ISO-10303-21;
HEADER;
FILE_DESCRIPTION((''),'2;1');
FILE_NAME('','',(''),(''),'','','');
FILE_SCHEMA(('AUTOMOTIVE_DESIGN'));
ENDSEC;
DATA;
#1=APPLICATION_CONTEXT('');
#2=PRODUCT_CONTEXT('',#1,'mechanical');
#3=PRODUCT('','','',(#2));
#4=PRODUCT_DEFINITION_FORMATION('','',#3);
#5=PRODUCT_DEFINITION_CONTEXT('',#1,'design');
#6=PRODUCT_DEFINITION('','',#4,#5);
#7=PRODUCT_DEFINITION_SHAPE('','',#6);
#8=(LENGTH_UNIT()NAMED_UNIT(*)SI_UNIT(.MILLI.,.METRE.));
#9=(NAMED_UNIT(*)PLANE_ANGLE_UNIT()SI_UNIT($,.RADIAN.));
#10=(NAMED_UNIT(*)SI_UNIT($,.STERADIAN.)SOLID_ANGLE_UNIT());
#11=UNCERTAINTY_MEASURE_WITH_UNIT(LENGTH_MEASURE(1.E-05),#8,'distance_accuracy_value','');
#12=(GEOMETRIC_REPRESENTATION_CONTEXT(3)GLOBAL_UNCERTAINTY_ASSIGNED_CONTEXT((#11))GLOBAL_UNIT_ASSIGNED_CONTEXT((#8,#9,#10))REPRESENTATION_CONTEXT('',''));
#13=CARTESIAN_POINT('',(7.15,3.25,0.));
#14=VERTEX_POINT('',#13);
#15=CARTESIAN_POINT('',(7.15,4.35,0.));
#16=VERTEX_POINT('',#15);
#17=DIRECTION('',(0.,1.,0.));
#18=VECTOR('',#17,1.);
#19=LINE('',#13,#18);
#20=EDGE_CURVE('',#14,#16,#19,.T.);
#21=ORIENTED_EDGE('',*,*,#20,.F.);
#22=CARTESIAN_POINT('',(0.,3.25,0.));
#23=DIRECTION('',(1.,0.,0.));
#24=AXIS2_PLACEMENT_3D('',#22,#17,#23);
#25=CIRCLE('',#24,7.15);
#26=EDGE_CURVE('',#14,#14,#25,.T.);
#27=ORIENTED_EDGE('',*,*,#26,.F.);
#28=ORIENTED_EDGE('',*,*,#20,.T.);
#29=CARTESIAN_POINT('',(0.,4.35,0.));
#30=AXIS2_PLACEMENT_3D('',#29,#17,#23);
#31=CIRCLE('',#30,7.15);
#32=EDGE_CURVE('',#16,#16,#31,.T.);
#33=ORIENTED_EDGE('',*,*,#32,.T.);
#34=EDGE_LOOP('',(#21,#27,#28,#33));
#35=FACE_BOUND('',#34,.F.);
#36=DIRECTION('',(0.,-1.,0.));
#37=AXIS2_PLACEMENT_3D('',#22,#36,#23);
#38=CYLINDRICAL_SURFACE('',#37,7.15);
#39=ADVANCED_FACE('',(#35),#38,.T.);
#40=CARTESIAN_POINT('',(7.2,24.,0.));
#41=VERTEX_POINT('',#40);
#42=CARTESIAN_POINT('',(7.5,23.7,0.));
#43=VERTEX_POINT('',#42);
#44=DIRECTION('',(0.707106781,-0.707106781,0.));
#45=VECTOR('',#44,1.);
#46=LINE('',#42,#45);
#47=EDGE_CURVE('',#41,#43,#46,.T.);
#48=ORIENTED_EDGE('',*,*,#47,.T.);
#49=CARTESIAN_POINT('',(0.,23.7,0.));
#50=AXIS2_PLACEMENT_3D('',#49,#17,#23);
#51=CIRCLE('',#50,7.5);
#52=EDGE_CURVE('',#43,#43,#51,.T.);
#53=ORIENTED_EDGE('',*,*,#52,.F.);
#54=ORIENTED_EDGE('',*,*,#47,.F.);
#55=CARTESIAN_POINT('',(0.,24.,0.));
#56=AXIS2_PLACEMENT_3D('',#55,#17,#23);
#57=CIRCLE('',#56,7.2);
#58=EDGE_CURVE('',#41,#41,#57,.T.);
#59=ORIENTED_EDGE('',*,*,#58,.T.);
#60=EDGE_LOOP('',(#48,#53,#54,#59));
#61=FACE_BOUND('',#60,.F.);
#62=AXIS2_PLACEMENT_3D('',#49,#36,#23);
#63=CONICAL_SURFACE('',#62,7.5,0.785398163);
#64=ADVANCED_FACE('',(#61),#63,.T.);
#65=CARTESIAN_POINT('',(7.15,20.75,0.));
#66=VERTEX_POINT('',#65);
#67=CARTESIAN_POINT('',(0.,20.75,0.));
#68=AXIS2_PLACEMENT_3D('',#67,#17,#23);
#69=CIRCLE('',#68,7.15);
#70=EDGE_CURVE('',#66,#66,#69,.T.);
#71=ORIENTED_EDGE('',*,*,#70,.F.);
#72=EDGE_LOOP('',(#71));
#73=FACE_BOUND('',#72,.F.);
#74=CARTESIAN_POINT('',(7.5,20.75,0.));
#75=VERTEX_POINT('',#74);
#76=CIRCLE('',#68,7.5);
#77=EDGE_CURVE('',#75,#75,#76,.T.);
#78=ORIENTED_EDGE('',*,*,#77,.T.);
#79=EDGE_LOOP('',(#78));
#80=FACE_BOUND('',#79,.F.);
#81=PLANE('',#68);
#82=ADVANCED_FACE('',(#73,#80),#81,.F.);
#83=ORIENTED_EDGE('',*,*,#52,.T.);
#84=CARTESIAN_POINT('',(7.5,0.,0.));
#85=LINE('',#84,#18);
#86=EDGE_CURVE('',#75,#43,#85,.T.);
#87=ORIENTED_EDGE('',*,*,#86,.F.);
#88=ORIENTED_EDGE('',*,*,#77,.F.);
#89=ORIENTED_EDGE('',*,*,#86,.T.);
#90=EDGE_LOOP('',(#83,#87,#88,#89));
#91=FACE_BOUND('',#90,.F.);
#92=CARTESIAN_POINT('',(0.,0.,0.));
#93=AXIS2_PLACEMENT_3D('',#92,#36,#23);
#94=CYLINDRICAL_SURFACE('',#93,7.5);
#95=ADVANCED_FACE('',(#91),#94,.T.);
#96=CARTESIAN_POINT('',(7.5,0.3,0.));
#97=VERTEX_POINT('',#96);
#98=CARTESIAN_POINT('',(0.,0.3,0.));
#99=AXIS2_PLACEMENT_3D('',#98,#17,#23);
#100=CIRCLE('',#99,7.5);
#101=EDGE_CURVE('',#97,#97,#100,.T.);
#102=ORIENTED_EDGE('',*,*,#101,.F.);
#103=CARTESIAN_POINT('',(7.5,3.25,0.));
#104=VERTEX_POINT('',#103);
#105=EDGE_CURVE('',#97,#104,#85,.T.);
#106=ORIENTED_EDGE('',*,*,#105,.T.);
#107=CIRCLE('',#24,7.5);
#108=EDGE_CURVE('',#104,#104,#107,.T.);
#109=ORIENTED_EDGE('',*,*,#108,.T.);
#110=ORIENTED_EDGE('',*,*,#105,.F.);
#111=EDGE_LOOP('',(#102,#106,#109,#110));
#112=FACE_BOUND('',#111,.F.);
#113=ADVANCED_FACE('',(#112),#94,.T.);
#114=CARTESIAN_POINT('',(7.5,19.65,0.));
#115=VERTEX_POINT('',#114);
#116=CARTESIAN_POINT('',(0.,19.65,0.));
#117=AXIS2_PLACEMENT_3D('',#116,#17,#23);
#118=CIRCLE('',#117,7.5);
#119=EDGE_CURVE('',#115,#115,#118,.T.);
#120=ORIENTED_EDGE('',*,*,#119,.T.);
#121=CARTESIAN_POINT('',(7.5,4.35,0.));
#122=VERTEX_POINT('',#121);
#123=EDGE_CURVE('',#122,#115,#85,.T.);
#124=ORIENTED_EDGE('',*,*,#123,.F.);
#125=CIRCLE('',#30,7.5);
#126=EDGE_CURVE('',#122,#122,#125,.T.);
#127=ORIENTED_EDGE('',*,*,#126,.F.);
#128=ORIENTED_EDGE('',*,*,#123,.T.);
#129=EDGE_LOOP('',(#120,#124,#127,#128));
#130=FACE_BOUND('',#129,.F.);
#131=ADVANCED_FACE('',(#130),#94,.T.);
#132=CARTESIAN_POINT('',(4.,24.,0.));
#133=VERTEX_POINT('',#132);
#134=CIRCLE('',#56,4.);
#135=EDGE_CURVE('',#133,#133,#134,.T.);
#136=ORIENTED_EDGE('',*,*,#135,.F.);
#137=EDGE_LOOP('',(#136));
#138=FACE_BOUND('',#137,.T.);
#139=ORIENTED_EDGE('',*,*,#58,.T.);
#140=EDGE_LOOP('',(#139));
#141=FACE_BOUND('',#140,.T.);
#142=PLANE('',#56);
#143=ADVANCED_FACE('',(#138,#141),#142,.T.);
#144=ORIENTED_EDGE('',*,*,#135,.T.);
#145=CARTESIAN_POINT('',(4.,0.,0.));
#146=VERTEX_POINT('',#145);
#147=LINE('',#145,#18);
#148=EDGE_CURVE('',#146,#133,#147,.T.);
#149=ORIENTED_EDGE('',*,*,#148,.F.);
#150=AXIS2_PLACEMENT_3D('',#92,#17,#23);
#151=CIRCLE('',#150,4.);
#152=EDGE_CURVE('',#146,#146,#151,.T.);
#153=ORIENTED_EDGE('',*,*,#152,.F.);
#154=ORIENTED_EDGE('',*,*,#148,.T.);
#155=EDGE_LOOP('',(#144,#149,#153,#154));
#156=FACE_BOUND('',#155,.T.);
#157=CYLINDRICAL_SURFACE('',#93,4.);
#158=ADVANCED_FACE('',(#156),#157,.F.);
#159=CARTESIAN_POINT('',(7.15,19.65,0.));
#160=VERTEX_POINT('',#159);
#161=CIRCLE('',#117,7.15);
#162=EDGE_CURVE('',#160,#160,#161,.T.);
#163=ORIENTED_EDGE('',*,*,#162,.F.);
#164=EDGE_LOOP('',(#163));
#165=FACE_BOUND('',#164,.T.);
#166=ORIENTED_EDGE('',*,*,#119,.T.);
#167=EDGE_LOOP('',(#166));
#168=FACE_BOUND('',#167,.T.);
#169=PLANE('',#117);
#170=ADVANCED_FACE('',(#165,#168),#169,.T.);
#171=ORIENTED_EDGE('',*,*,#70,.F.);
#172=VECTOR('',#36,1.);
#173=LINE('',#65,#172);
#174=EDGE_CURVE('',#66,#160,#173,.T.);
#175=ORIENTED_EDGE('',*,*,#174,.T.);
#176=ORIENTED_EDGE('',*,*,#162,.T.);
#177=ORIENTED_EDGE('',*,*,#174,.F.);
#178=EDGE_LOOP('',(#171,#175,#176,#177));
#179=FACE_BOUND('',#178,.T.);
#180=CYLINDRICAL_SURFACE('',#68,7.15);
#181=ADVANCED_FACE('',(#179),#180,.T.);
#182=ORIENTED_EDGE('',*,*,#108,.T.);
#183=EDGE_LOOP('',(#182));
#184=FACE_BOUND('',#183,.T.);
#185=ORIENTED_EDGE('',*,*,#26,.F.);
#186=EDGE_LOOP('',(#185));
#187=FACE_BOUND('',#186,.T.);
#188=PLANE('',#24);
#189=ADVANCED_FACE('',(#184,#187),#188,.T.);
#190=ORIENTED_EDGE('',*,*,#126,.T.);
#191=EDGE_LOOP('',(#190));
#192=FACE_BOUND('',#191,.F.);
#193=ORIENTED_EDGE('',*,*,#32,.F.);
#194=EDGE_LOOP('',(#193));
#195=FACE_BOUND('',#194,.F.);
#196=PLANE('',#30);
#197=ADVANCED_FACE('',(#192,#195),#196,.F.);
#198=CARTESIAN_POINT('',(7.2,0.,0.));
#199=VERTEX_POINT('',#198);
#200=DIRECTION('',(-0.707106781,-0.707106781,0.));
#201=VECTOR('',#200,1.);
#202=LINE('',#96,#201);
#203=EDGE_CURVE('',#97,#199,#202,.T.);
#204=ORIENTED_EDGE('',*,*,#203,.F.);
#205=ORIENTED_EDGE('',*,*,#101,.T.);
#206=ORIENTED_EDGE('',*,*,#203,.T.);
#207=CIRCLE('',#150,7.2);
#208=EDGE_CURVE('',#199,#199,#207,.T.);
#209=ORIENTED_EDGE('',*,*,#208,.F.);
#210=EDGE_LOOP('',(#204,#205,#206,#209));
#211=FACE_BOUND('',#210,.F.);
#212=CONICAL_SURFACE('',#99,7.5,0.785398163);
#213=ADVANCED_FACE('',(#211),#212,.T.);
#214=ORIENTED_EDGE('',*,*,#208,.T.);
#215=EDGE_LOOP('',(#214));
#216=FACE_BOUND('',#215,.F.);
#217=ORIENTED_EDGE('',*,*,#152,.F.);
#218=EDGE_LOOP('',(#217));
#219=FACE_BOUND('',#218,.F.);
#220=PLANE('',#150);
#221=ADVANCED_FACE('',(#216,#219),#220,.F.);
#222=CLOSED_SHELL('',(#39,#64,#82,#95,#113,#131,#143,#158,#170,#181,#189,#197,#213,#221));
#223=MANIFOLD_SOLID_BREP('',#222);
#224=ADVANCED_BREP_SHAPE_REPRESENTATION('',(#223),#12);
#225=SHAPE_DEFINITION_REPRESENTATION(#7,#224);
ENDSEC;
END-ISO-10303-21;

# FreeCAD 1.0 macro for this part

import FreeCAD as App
import Part
import Sketcher
Q = App.Units.Quantity


def edges_at(feature, points):
    """Names of the edges that pass closest to the given points."""
    edges = feature.Shape.Edges
    near = lambda p: min(range(len(edges)), key=lambda i: edges[i].distToShape(Part.Vertex(*p))[0])
    return sorted({f"Edge{near(p) + 1}" for p in points})

doc = App.newDocument("Part")
body = doc.addObject("PartDesign::Body", "Body")

sketch1 = body.newObject("Sketcher::SketchObject", "Sketch")
sketch1.AttachmentSupport = (doc.getObject("XZ_Plane"), [""])
sketch1.MapMode = "FlatFace"
sketch1.addGeometry(Part.Circle(App.Vector(0, 0, 0), App.Vector(0, 0, 1), 7.5), False)
sketch1.addGeometry(Part.Circle(App.Vector(0, 0, 0), App.Vector(0, 0, 1), 4), False)
sketch1.addConstraint(Sketcher.Constraint("Coincident", 0, 3, -1, 1))
sketch1.addConstraint(Sketcher.Constraint("Coincident", 1, 3, -1, 1))
sketch1.addConstraint(Sketcher.Constraint("Diameter", 0, Q("15 mm")))
sketch1.addConstraint(Sketcher.Constraint("Diameter", 1, Q("8 mm")))
pad1 = body.newObject("PartDesign::Pad", "Pad")
pad1.Profile = sketch1
pad1.Length = 24
pad1.Reversed = True

sketch2 = body.newObject("Sketcher::SketchObject", "Sketch001")
sketch2.AttachmentSupport = (doc.getObject("XZ_Plane"), [""])
sketch2.MapMode = "FlatFace"
sketch2.AttachmentOffset = App.Placement(App.Vector(0, 0, -3.25), App.Rotation())
sketch2.addGeometry(Part.Circle(App.Vector(0, 0, 0), App.Vector(0, 0, 1), 8), False)
sketch2.addGeometry(Part.Circle(App.Vector(0, 0, 0), App.Vector(0, 0, 1), 7), False)
sketch2.addConstraint(Sketcher.Constraint("Coincident", 0, 3, -1, 1))
sketch2.addConstraint(Sketcher.Constraint("Coincident", 1, 3, -1, 1))
sketch2.addConstraint(Sketcher.Constraint("Diameter", 0, Q("15 mm")))
sketch2.addConstraint(Sketcher.Constraint("Diameter", 1, Q("14.3 mm")))
pocket1 = body.newObject("PartDesign::Pocket", "Pocket")
pocket1.Profile = sketch2
pocket1.Length = 1.1

sketch3 = body.newObject("Sketcher::SketchObject", "Sketch002")
sketch3.AttachmentSupport = (doc.getObject("XZ_Plane"), [""])
sketch3.MapMode = "FlatFace"
sketch3.AttachmentOffset = App.Placement(App.Vector(0, 0, -20.75), App.Rotation())
sketch3.addGeometry(Part.Circle(App.Vector(0, 0, 0), App.Vector(0, 0, 1), 8), False)
sketch3.addGeometry(Part.Circle(App.Vector(0, 0, 0), App.Vector(0, 0, 1), 7), False)
sketch3.addConstraint(Sketcher.Constraint("Coincident", 0, 3, -1, 1))
sketch3.addConstraint(Sketcher.Constraint("Coincident", 1, 3, -1, 1))
sketch3.addConstraint(Sketcher.Constraint("Diameter", 0, Q("15 mm")))
sketch3.addConstraint(Sketcher.Constraint("Diameter", 1, Q("14.3 mm")))
pocket2 = body.newObject("PartDesign::Pocket", "Pocket001")
pocket2.Profile = sketch3
pocket2.Length = 1.1
pocket2.Reversed = True
doc.recompute()

chamfer = body.newObject("PartDesign::Chamfer", "Chamfer")
chamfer.Base = (pocket2, edges_at(pocket2, [(-6.992, 0, 2.712), (-6.992, 24, 2.712)]))
chamfer.Size = 0.3

doc.recompute()
